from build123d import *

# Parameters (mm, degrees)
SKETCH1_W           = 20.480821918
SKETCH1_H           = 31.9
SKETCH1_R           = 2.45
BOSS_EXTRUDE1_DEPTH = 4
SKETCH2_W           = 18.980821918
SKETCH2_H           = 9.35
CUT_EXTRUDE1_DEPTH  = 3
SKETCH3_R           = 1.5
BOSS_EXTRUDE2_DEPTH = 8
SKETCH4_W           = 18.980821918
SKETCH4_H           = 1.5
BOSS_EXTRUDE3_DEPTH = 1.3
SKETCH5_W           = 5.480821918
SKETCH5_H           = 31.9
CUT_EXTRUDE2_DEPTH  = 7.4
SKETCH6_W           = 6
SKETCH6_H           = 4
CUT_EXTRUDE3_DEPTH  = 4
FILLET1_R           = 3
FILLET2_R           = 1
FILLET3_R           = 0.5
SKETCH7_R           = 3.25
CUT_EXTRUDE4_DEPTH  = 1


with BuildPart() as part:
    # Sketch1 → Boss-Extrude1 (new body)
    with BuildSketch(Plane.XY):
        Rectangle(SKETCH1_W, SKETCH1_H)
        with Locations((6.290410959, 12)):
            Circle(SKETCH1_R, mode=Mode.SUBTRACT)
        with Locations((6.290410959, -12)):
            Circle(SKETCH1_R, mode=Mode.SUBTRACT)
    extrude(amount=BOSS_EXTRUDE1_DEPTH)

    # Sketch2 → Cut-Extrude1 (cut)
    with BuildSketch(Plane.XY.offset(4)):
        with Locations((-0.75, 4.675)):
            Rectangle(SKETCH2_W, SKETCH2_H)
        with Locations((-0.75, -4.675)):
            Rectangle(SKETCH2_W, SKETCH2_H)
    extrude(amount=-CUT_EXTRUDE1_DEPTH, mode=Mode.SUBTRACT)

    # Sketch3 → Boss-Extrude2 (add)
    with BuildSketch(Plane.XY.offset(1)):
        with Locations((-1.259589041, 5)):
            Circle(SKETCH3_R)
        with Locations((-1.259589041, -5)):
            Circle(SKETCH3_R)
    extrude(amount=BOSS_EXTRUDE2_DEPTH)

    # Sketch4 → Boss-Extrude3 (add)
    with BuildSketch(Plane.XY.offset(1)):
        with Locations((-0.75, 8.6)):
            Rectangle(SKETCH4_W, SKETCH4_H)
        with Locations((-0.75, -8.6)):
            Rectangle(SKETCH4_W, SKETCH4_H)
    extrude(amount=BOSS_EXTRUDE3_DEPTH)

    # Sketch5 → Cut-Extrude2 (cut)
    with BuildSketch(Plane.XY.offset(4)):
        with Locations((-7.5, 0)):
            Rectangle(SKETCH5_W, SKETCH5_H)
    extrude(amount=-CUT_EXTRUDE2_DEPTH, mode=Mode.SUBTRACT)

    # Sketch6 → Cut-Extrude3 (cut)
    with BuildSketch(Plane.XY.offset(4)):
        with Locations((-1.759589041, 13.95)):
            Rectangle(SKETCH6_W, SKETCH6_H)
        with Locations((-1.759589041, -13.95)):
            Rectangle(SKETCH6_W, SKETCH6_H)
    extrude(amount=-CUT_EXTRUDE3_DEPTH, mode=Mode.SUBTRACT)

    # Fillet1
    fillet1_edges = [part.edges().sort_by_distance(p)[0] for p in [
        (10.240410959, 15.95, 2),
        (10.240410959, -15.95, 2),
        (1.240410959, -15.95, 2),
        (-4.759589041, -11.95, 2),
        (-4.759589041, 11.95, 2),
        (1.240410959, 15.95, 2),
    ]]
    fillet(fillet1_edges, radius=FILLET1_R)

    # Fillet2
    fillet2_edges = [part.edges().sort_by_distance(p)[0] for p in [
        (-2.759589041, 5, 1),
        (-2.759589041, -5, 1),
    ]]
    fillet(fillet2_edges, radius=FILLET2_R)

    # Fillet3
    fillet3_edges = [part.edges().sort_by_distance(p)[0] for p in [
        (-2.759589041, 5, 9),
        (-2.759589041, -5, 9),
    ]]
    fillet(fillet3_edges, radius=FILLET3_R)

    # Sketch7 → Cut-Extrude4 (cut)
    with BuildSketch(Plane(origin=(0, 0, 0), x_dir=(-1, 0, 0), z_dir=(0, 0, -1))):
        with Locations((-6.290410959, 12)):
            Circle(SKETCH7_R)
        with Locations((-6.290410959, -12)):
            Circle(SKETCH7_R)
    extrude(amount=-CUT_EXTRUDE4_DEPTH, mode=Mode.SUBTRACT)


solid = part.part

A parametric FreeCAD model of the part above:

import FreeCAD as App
import Part
import Sketcher


def edges_at(feature, points):
    """Names of the edges that pass closest to the given points."""
    edges = feature.Shape.Edges
    near = lambda p: min(range(len(edges)), key=lambda i: edges[i].distToShape(Part.Vertex(*p))[0])
    return sorted({f"Edge{near(p) + 1}" for p in points})


def add_polygon(sketch, points):
    """Adds a closed chain of lines whose ends are joined by coincident constraints."""
    first, n = sketch.GeometryCount, len(points)
    for a, b in zip(points, points[1:] + points[:1]):
        sketch.addGeometry(Part.LineSegment(App.Vector(*a, 0), App.Vector(*b, 0)), False)
    for i in range(n):
        sketch.addConstraint(Sketcher.Constraint("Coincident", first + i, 2, first + (i + 1) % n, 1))

doc = App.newDocument("Part")
body = doc.addObject("PartDesign::Body", "Body")

# Sketch on XY plane
sketch1 = body.newObject("Sketcher::SketchObject", "Sketch")
sketch1.AttachmentSupport = (doc.getObject("XY_Plane"), [""])
sketch1.MapMode = "FlatFace"
add_polygon(sketch1, [(-10.2, 15.9), (-10.2, -15.9), (10.2, -15.9), (10.2, 15.9)])  # lines 0-3
sketch1.addGeometry(Part.Circle(App.Vector(6.3, -12, 0), App.Vector(0, 0, 1), 2.5), False)  # 4
sketch1.addGeometry(Part.Circle(App.Vector(6.3, 12, 0), App.Vector(0, 0, 1), 2.5), False)  # 5
sketch1.addConstraint([
    Sketcher.Constraint("Vertical", 0),
    Sketcher.Constraint("Horizontal", 1),
    Sketcher.Constraint("Vertical", 2),
    Sketcher.Constraint("Horizontal", 3),
    Sketcher.Constraint("Equal", 4, 5),
    Sketcher.Constraint("Symmetric", 0, 2, 2, 2, -1, 1),
    Sketcher.Constraint("Symmetric", 4, 3, 5, 3, -1),
    Sketcher.Constraint("Diameter", 4, 4.9),
    Sketcher.Constraint("DistanceY", 0, 2, 0, 1, 31.9),
    Sketcher.Constraint("DistanceY", 4, 3, -1, 1, 12.0),
    Sketcher.Constraint("DistanceX", 4, 3, 1, 2, 3.95),
    Sketcher.Constraint("DistanceX", 1, 1, 1, 2, 20.480822),
])
pad1 = body.newObject("PartDesign::Pad", "Pad")
pad1.Profile = sketch1
pad1.Length = 4

# Sketch on XY plane
sketch2 = body.newObject("Sketcher::SketchObject", "Sketch001")
sketch2.AttachmentSupport = (doc.getObject("XY_Plane"), [""])
sketch2.MapMode = "FlatFace"
sketch2.AttachmentOffset = App.Placement(App.Vector(0, 0, 4), App.Rotation())
add_polygon(sketch2, [(-10, 9), (-10, -9), (9, -9), (9, 9)])  # lines 0-3
sketch2.addConstraint([
    Sketcher.Constraint("Vertical", 0),
    Sketcher.Constraint("Horizontal", 1),
    Sketcher.Constraint("Vertical", 2),
    Sketcher.Constraint("Horizontal", 3),
    Sketcher.Constraint("DistanceY", 0, 2, 0, 1, 18.7),
    Sketcher.Constraint("DistanceY", 0, 2, -1, 1, 9.35),
    Sketcher.Constraint("DistanceX", 1, 1, 1, 2, 18.980822),
    Sketcher.Constraint("DistanceX", 0, 2, -1, 1, 10.240411),
])
pocket1 = body.newObject("PartDesign::Pocket", "Pocket")
pocket1.Profile = sketch2
pocket1.Length = 3

# Sketch on XY plane
sketch3 = body.newObject("Sketcher::SketchObject", "Sketch002")
sketch3.AttachmentSupport = (doc.getObject("XY_Plane"), [""])
sketch3.MapMode = "FlatFace"
sketch3.AttachmentOffset = App.Placement(App.Vector(0, 0, 1), App.Rotation())
sketch3.addGeometry([
    Part.Circle(App.Vector(-1.3, 5, 0), App.Vector(0, 0, 1), 1.5),
    Part.Circle(App.Vector(-1.3, -5, 0), App.Vector(0, 0, 1), 1.5),
], False)
sketch3.addConstraint([
    Sketcher.Constraint("Equal", 0, 1),
    Sketcher.Constraint("Symmetric", 0, 3, 1, 3, -1),
    Sketcher.Constraint("Diameter", 0, 3.0),
    Sketcher.Constraint("DistanceY", -1, 1, 0, 3, 5.0),
    Sketcher.Constraint("DistanceX", 0, 3, -1, 1, 1.259589),
])
pad2 = body.newObject("PartDesign::Pad", "Pad001")
pad2.Profile = sketch3
pad2.Length = 8

# Sketch on XY plane
sketch4 = body.newObject("Sketcher::SketchObject", "Sketch003")
sketch4.AttachmentSupport = (doc.getObject("XY_Plane"), [""])
sketch4.MapMode = "FlatFace"
sketch4.AttachmentOffset = App.Placement(App.Vector(0, 0, 1), App.Rotation())
add_polygon(sketch4, [(-10.2, 9.3), (-10.2, 7.8), (8.7, 7.8), (8.7, 9.3)])  # lines 0-3
add_polygon(sketch4, [(-10.2, -7.8), (-10.2, -9.3), (8.7, -9.3), (8.7, -7.8)])  # lines 4-7
sketch4.addConstraint([
    Sketcher.Constraint("Vertical", 0),
    Sketcher.Constraint("Horizontal", 1),
    Sketcher.Constraint("Vertical", 2),
    Sketcher.Constraint("Horizontal", 3),
    Sketcher.Constraint("Vertical", 4),
    Sketcher.Constraint("Horizontal", 5),
    Sketcher.Constraint("Vertical", 6),
    Sketcher.Constraint("Horizontal", 7),
    Sketcher.Constraint("Symmetric", 3, 2, 4, 2, -1),
    Sketcher.Constraint("Symmetric", 1, 2, 6, 2, -1),
    Sketcher.Constraint("DistanceY", 0, 2, 0, 1, 1.5),
    Sketcher.Constraint("DistanceY", 4, 2, 0, 2, 17.2),
    Sketcher.Constraint("DistanceX", 1, 1, 1, 2, 18.980822),
    Sketcher.Constraint("DistanceX", 0, 2, -1, 1, 10.240411),
])
pad3 = body.newObject("PartDesign::Pad", "Pad002")
pad3.Profile = sketch4
pad3.Length = 1.3

# Sketch on XY plane
sketch5 = body.newObject("Sketcher::SketchObject", "Sketch004")
sketch5.AttachmentSupport = (doc.getObject("XY_Plane"), [""])
sketch5.MapMode = "FlatFace"
sketch5.AttachmentOffset = App.Placement(App.Vector(0, 0, 4), App.Rotation())
add_polygon(sketch5, [(-10, 16), (-10, -16), (-5, -16), (-5, 16)])  # lines 0-3
sketch5.addConstraint([
    Sketcher.Constraint("Vertical", 0),
    Sketcher.Constraint("Horizontal", 1),
    Sketcher.Constraint("Vertical", 2),
    Sketcher.Constraint("Horizontal", 3),
    Sketcher.Constraint("DistanceY", 0, 2, 0, 1, 31.9),
    Sketcher.Constraint("DistanceY", 0, 2, -1, 1, 15.95),
    Sketcher.Constraint("DistanceX", 1, 1, 1, 2, 5.480822),
    Sketcher.Constraint("DistanceX", 0, 2, -1, 1, 10.240411),
])
pocket2 = body.newObject("PartDesign::Pocket", "Pocket001")
pocket2.Profile = sketch5
pocket2.Length = 7.4

# Sketch on XY plane
sketch6 = body.newObject("Sketcher::SketchObject", "Sketch005")
sketch6.AttachmentSupport = (doc.getObject("XY_Plane"), [""])
sketch6.MapMode = "FlatFace"
sketch6.AttachmentOffset = App.Placement(App.Vector(0, 0, 4), App.Rotation())
add_polygon(sketch6, [(-4.8, 15.9), (-4.8, 11.9), (1.2, 11.9), (1.2, 15.9)])  # lines 0-3
add_polygon(sketch6, [(-4.8, -11.9), (-4.8, -15.9), (1.2, -15.9), (1.2, -11.9)])  # lines 4-7
sketch6.addConstraint([
    Sketcher.Constraint("Vertical", 0),
    Sketcher.Constraint("Horizontal", 1),
    Sketcher.Constraint("Vertical", 2),
    Sketcher.Constraint("Horizontal", 3),
    Sketcher.Constraint("Vertical", 4),
    Sketcher.Constraint("Horizontal", 5),
    Sketcher.Constraint("Vertical", 6),
    Sketcher.Constraint("Horizontal", 7),
    Sketcher.Constraint("Symmetric", 3, 2, 4, 2, -1),
    Sketcher.Constraint("Symmetric", 1, 2, 6, 2, -1),
    Sketcher.Constraint("DistanceX", 1, 1, 1, 2, 6.0),
    Sketcher.Constraint("DistanceY", 0, 2, 0, 1, 4.0),
    Sketcher.Constraint("DistanceY", 4, 2, 0, 2, 27.9),
    Sketcher.Constraint("DistanceX", 0, 2, -1, 1, 4.759589),
])
pocket3 = body.newObject("PartDesign::Pocket", "Pocket002")
pocket3.Profile = sketch6
pocket3.Length = 4
doc.recompute()

fillet = body.newObject("PartDesign::Fillet", "Fillet")
fillet.Base = (pocket3, edges_at(pocket3, [
    (10.24, 15.95, 2),
    (10.24, -15.95, 2),
    (1.24, -15.95, 2),
    (-4.76, -11.95, 2),
    (-4.76, 11.95, 2),
    (1.24, 15.95, 2),
]))
fillet.Radius = 3
doc.recompute()

fillet2 = body.newObject("PartDesign::Fillet", "Fillet001")
fillet2.Base = (fillet, edges_at(fillet, [(-2.76, 5, 1), (-2.76, -5, 1)]))
fillet2.Radius = 1
doc.recompute()

fillet3 = body.newObject("PartDesign::Fillet", "Fillet002")
fillet3.Base = (fillet2, edges_at(fillet2, [(-2.76, 5, 9), (-2.76, -5, 9)]))
fillet3.Radius = 0.5

# Sketch on XY plane
sketch7 = body.newObject("Sketcher::SketchObject", "Sketch006")
sketch7.AttachmentSupport = (doc.getObject("XY_Plane"), [""])
sketch7.MapMode = "FlatFace"
sketch7.addGeometry([
    Part.Circle(App.Vector(6.3, 12, 0), App.Vector(0, 0, 1), 3.2),
    Part.Circle(App.Vector(6.3, -12, 0), App.Vector(0, 0, 1), 3.2),
], False)
sketch7.addConstraint([
    Sketcher.Constraint("Equal", 0, 1),
    Sketcher.Constraint("Symmetric", 0, 3, 1, 3, -1),
    Sketcher.Constraint("Diameter", 0, 6.5),
    Sketcher.Constraint("DistanceY", -1, 1, 0, 3, 12.0),
    Sketcher.Constraint("DistanceX", -1, 1, 0, 3, 6.290411),
])
pocket4 = body.newObject("PartDesign::Pocket", "Pocket003")
pocket4.Profile = sketch7
pocket4.Length = 1
pocket4.Reversed = True

doc.recompute()
